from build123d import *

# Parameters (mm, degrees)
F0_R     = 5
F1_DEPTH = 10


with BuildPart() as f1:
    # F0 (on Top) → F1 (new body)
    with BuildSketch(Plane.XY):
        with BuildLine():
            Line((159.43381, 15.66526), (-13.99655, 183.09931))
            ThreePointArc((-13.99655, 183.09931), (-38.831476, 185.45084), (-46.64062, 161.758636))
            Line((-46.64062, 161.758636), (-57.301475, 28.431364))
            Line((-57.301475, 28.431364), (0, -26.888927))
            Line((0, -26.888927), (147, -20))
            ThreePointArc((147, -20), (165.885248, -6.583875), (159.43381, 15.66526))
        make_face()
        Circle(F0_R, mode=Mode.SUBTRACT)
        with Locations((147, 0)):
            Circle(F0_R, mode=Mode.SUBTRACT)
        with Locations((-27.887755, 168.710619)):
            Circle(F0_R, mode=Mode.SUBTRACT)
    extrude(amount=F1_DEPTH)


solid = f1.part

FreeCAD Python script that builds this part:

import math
import FreeCAD as App
import Part
import Sketcher

doc = App.newDocument("Part")
body = doc.addObject("PartDesign::Body", "Body")

# Sketch on XY plane
sketch1 = body.newObject("Sketcher::SketchObject", "Sketch")
sketch1.AttachmentSupport = (doc.getObject("XY_Plane"), [""])
sketch1.MapMode = "FlatFace"
sketch1.addGeometry(Part.LineSegment(App.Vector(159.43381, 15.66526, 0), App.Vector(-13.99655, 183.09931, 0)), False)
sketch1.addGeometry(Part.ArcOfCircle(Part.Circle(App.Vector(-27.887755, 168.710619, 0), App.Vector(0, 0, 1), 20), math.radians(46.007813), math.radians(200.34054)), False)
sketch1.addGeometry(Part.LineSegment(App.Vector(-46.64062, 161.758636, 0), App.Vector(-57.301475, 28.431364, 0)), False)
sketch1.addGeometry(Part.LineSegment(App.Vector(-57.301475, 28.431364, 0), App.Vector(0, -26.888927, 0)), False)
sketch1.addGeometry(Part.LineSegment(App.Vector(0, -26.888927, 0), App.Vector(147, -20, 0)), False)
sketch1.addGeometry(Part.ArcOfCircle(Part.Circle(App.Vector(147, 0, 0), App.Vector(0, 0, 1), 20), math.radians(-90), math.radians(51.560311)), False)
sketch1.addGeometry(Part.Circle(App.Vector(0, 0, 0), App.Vector(0, 0, 1), 5), False)
sketch1.addGeometry(Part.Circle(App.Vector(147, 0, 0), App.Vector(0, 0, 1), 5), False)
sketch1.addGeometry(Part.Circle(App.Vector(-27.887755, 168.710619, 0), App.Vector(0, 0, 1), 5), False)
sketch1.addConstraint(Sketcher.Constraint("Coincident", 0, 2, 1, 1))
sketch1.addConstraint(Sketcher.Constraint("Coincident", 1, 2, 2, 1))
sketch1.addConstraint(Sketcher.Constraint("Coincident", 2, 2, 3, 1))
sketch1.addConstraint(Sketcher.Constraint("Coincident", 3, 2, 4, 1))
sketch1.addConstraint(Sketcher.Constraint("Coincident", 4, 2, 5, 1))
sketch1.addConstraint(Sketcher.Constraint("Coincident", 5, 2, 0, 1))
sketch1.addConstraint(Sketcher.Constraint("Coincident", 6, 3, -1, 1))
sketch1.addConstraint(Sketcher.Constraint("Coincident", 7, 3, 5, 3))
sketch1.addConstraint(Sketcher.Constraint("Coincident", 8, 3, 1, 3))
sketch1.addConstraint(Sketcher.Constraint("PointOnObject", 5, 3, -1))
sketch1.addConstraint(Sketcher.Constraint("PointOnObject", 3, 2, -2))
sketch1.addConstraint(Sketcher.Constraint("Diameter", 6, 10.0))
sketch1.addConstraint(Sketcher.Constraint("Diameter", 7, 10.0))
sketch1.addConstraint(Sketcher.Constraint("Diameter", 8, 10.0))
sketch1.addConstraint(Sketcher.Constraint("Radius", 1, 20.0))
sketch1.addConstraint(Sketcher.Constraint("Radius", 5, 20.0))
sketch1.addConstraint(Sketcher.Constraint("DistanceX", -1, 1, 5, 3, 147.0))
sketch1.addConstraint(Sketcher.Constraint("DistanceX", -1, 1, 4, 2, 147.0))
sketch1.addConstraint(Sketcher.Constraint("Distance", 4, 147.161331))
sketch1.addConstraint(Sketcher.Constraint("DistanceY", -1, 1, 1, 3, 168.710619))
sketch1.addConstraint(Sketcher.Constraint("DistanceX", 0, 2, -1, 1, 13.99655))
sketch1.addConstraint(Sketcher.Constraint("DistanceY", -1, 1, 0, 2, 183.09931))
sketch1.addConstraint(Sketcher.Constraint("DistanceX", 1, 2, -1, 1, 46.64062))
sketch1.addConstraint(Sketcher.Constraint("DistanceX", -1, 1, 5, 2, 159.43381))
sketch1.addConstraint(Sketcher.Constraint("DistanceX", 2, 2, 8, 3, 29.41372))
sketch1.addConstraint(Sketcher.Constraint("DistanceY", 3, 2, 2, 2, 55.320291))
pad1 = body.newObject("PartDesign::Pad", "Pad")
pad1.Profile = sketch1
pad1.Length = 10

doc.recompute()
